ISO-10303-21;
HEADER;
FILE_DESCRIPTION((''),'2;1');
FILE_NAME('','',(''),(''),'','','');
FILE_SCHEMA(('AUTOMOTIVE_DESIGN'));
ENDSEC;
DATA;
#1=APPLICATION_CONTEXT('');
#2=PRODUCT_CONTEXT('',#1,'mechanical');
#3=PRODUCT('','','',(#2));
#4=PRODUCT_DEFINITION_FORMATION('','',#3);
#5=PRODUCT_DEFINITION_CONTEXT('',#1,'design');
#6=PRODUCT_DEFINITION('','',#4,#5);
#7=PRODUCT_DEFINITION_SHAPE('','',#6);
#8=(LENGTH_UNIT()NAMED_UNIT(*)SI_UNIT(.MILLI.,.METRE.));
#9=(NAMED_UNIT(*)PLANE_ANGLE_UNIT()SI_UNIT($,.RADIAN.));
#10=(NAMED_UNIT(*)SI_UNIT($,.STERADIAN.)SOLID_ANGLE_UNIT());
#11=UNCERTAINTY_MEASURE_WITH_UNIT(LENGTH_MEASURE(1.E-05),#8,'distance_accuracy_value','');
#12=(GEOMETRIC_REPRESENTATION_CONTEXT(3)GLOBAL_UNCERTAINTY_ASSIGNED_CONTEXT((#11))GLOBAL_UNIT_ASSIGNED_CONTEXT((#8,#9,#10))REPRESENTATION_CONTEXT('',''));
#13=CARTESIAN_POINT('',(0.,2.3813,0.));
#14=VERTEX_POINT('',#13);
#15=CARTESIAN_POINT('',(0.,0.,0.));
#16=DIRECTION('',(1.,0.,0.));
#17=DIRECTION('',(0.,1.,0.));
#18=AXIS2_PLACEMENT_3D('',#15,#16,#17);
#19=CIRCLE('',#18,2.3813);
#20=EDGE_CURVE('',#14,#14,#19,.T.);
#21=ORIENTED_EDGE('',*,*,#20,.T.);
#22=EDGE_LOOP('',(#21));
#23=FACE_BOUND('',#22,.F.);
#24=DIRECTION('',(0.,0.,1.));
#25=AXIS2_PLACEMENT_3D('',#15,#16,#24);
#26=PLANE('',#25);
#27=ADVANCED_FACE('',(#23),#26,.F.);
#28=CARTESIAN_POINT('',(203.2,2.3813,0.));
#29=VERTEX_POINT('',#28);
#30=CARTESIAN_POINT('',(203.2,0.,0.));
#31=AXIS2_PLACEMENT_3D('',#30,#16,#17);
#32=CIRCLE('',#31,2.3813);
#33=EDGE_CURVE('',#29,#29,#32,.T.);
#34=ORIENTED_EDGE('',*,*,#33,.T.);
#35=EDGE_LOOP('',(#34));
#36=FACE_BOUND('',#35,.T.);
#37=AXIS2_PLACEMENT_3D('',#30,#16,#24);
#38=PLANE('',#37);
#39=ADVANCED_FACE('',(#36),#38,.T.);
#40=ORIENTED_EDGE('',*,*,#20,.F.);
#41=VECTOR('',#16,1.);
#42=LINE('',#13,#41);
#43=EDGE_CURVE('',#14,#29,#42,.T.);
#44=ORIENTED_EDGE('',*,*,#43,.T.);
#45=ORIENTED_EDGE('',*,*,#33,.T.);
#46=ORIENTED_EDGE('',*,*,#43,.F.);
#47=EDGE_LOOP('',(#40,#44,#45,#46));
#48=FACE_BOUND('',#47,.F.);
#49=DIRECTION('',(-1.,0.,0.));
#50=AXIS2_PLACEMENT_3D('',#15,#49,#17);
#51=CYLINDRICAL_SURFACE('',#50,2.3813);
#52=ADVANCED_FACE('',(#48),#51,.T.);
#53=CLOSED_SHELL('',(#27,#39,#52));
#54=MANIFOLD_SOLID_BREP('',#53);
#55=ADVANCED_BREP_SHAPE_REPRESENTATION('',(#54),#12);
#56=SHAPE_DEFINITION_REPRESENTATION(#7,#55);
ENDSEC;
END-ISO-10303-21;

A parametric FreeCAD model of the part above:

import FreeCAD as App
import Part
import Sketcher
Q = App.Units.Quantity

doc = App.newDocument("Part")
body = doc.addObject("PartDesign::Body", "Body")

sketch1 = body.newObject("Sketcher::SketchObject", "Sketch")
sketch1.AttachmentSupport = (doc.getObject("YZ_Plane"), [""])
sketch1.MapMode = "FlatFace"
sketch1.addGeometry(Part.Circle(App.Vector(0, 0, 0), App.Vector(0, 0, 1), 2.4), False)
sketch1.addConstraint([
    Sketcher.Constraint("Coincident", 0, 3, -1, 1),
    Sketcher.Constraint("Diameter", 0, Q("0.1875 in")),
])
pad1 = body.newObject("PartDesign::Pad", "Pad")
pad1.Profile = sketch1
pad1.Length = Q("8 in")

doc.recompute()
